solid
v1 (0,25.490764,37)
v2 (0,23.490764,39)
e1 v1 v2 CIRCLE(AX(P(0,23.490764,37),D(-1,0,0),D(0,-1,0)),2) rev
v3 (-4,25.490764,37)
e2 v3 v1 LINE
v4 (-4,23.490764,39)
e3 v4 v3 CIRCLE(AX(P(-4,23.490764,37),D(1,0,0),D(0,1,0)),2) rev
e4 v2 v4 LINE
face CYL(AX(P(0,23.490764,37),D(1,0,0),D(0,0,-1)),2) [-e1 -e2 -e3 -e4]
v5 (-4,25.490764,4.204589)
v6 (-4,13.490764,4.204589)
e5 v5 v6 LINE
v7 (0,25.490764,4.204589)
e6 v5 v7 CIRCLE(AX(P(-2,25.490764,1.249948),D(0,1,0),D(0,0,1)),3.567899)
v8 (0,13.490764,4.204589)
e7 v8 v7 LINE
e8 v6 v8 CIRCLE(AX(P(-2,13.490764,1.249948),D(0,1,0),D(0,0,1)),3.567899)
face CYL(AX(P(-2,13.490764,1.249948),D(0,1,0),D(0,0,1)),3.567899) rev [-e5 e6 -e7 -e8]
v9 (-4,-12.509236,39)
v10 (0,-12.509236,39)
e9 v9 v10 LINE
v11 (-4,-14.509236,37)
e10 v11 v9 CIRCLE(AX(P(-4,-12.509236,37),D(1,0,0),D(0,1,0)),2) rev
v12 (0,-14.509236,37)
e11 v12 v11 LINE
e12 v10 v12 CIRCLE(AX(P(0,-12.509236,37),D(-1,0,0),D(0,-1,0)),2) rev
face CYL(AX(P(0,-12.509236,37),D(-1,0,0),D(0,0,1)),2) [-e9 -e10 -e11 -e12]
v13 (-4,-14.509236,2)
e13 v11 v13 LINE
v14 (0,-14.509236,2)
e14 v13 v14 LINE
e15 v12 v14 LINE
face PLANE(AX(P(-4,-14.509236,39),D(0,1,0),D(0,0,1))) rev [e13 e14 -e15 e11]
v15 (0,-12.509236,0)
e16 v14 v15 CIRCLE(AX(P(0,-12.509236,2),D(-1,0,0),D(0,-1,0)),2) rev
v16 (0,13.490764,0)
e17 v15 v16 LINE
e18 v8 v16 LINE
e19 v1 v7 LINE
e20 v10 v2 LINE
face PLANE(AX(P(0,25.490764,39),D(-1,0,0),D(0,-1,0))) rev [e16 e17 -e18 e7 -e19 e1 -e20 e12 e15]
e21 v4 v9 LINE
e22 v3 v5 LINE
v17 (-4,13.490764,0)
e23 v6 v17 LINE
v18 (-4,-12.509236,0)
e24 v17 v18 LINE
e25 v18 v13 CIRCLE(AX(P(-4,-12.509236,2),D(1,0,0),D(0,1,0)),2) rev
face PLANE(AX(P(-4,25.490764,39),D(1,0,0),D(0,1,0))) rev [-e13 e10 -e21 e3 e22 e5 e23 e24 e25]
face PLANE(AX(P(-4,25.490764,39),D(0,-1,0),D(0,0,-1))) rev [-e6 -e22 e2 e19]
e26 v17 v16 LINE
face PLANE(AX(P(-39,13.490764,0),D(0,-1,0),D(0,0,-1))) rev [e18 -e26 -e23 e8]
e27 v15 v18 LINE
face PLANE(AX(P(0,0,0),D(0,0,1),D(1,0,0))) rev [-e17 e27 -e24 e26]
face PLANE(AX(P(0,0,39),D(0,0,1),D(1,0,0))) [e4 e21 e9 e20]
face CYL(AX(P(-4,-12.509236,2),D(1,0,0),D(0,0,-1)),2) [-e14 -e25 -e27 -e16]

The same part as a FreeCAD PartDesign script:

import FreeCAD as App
import Part
import Sketcher
from FreeCAD import Vector


def edges_at(feature, points):
    """Names of the edges that pass closest to the given points."""
    edges = feature.Shape.Edges
    near = lambda p: min(range(len(edges)), key=lambda i: edges[i].distToShape(Part.Vertex(*p))[0])
    return sorted({f"Edge{near(p) + 1}" for p in points})


def add_polygon(sketch, points):
    """Adds a closed chain of lines whose ends are joined by coincident constraints."""
    first, n = sketch.GeometryCount, len(points)
    for a, b in zip(points, points[1:] + points[:1]):
        sketch.addGeometry(Part.LineSegment(App.Vector(*a, 0), App.Vector(*b, 0)), False)
    for i in range(n):
        sketch.addConstraint(Sketcher.Constraint("Coincident", first + i, 2, first + (i + 1) % n, 1))

doc = App.newDocument("Part")
body = doc.addObject("PartDesign::Body", "Body")

sketch1 = body.newObject("Sketcher::SketchObject", "Sketch")
sketch1.AttachmentSupport = (doc.getObject("XY_Plane"), [""])
sketch1.MapMode = "FlatFace"
add_polygon(sketch1, [(-4, 25.490764), (-4, -14.509236), (0, -14.509236), (0, 25.490764)])
sketch1.addConstraint([
    Sketcher.Constraint("Vertical", 0),
    Sketcher.Constraint("Horizontal", 1),
    Sketcher.Constraint("Vertical", 2),
    Sketcher.Constraint("Horizontal", 3),
    Sketcher.Constraint("PointOnObject", 1, 2, -2),
    Sketcher.Constraint("DistanceX", 1, 1, 1, 2, 4.0),
    Sketcher.Constraint("DistanceY", 0, 2, 0, 1, 40.0),
    Sketcher.Constraint("DistanceY", 0, 2, -1, 1, 14.509236),
])
pad1 = body.newObject("PartDesign::Pad", "Pad")
pad1.Profile = sketch1
pad1.Length = 39

sketch2 = body.newObject("Sketcher::SketchObject", "Sketch001")
sketch2.AttachmentSupport = (doc.getObject("YZ_Plane"), [""])
sketch2.MapMode = "FlatFace"
add_polygon(sketch2, [(25.490764, 4), (13.490764, 4), (13.490764, 0), (25.490764, 0)])
sketch2.addConstraint([
    Sketcher.Constraint("Horizontal", 0),
    Sketcher.Constraint("Vertical", 1),
    Sketcher.Constraint("Horizontal", 2),
    Sketcher.Constraint("Vertical", 3),
    Sketcher.Constraint("PointOnObject", 1, 2, -1),
    Sketcher.Constraint("DistanceX", 0, 2, 0, 1, 12.0),
    Sketcher.Constraint("DistanceY", 1, 2, 1, 1, 4.0),
    Sketcher.Constraint("DistanceX", -1, 1, 0, 2, 13.490764),
])
pocket1 = body.newObject("PartDesign::Pocket", "Pocket")
pocket1.Profile = sketch2
pocket1.Length = 39

sketch3 = body.newObject("Sketcher::SketchObject", "Sketch002")
sketch3.AttachmentSupport = (doc.getObject("XZ_Plane"), [""])
sketch3.MapMode = "FlatFace"
sketch3.AttachmentOffset = App.Placement(Vector(0, 0, -25.490764), App.Rotation())
sketch3.addGeometry(Part.Circle(Vector(-2, 1.249948, 0), Vector(0, 0, 1), 3.567899), False)
sketch3.addConstraint([
    Sketcher.Constraint("DistanceX", 0, 3, -1, 1, 2.0),
    Sketcher.Constraint("Diameter", 0, 7.135798),
    Sketcher.Constraint("DistanceY", -1, 1, 0, 3, 1.249948),
])
pocket2 = body.newObject("PartDesign::Pocket", "Pocket001")
pocket2.Profile = sketch3
pocket2.Length = 12
pocket2.Reversed = True
doc.recompute()

fillet = body.newObject("PartDesign::Fillet", "Fillet")
fillet.Base = (pocket2, edges_at(pocket2, [(-2, 25.491, 39)]))
fillet.Radius = 2
doc.recompute()

fillet2 = body.newObject("PartDesign::Fillet", "Fillet001")
fillet2.Base = (fillet, edges_at(fillet, [(-2, -14.509, 0), (-2, -14.509, 39)]))
fillet2.Radius = 2

doc.recompute()
